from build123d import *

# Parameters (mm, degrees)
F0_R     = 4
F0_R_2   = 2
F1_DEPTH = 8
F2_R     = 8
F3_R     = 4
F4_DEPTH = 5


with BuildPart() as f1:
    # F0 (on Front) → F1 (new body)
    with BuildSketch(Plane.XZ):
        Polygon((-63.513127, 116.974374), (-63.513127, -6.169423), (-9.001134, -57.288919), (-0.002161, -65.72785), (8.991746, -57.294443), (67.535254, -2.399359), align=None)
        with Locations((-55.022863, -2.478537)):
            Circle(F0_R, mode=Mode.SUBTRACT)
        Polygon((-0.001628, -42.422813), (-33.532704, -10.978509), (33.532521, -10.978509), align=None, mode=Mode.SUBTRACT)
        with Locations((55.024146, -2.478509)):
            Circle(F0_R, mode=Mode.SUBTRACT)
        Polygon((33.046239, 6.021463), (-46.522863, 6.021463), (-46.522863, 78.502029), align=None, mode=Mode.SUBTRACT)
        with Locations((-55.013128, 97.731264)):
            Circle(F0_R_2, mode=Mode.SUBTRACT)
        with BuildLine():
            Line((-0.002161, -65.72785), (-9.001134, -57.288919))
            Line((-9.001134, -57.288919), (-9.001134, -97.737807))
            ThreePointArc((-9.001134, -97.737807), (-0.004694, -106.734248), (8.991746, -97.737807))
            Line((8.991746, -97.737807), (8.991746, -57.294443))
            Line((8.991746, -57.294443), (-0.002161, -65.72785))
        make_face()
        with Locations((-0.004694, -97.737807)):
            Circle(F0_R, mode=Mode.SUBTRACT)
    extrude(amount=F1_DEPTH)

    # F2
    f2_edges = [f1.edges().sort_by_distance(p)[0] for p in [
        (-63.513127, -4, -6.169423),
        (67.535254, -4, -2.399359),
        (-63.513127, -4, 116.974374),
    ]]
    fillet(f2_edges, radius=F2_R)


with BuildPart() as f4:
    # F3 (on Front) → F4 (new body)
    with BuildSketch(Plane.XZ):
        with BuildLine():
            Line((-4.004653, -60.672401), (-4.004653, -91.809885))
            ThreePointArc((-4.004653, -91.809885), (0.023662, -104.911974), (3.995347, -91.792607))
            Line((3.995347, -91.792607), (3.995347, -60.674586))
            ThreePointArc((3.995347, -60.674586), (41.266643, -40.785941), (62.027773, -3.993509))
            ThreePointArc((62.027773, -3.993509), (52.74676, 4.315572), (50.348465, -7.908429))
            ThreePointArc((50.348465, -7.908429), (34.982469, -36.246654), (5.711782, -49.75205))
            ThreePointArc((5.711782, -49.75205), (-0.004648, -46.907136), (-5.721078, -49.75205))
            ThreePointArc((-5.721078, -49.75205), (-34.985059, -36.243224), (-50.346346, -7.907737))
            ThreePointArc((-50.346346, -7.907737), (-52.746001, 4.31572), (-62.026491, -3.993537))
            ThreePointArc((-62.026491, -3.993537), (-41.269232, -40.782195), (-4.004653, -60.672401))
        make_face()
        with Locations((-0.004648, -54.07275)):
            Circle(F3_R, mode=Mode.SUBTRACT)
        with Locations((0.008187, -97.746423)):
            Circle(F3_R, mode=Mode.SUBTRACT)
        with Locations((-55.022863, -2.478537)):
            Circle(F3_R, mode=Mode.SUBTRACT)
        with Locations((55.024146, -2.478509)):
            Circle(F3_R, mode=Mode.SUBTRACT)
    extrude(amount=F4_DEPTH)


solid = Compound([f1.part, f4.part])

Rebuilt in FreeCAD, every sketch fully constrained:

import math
import FreeCAD as App
import Part
import Sketcher
Q = App.Units.Quantity


def edges_at(feature, points):
    """Names of the edges that pass closest to the given points."""
    edges = feature.Shape.Edges
    near = lambda p: min(range(len(edges)), key=lambda i: edges[i].distToShape(Part.Vertex(*p))[0])
    return sorted({f"Edge{near(p) + 1}" for p in points})

doc = App.newDocument("Part")
body = doc.addObject("PartDesign::Body", "Body")

# Sketch on XZ plane
sketch1 = body.newObject("Sketcher::SketchObject", "Sketch")
sketch1.AttachmentSupport = (doc.getObject("XZ_Plane"), [""])
sketch1.MapMode = "FlatFace"
sketch1.addGeometry(Part.LineSegment(App.Vector(-63.5, 117, 0), App.Vector(-63.5, -6.2, 0)), False)
sketch1.addGeometry(Part.LineSegment(App.Vector(-63.5, -6.2, 0), App.Vector(-9, -57.3, 0)), False)
sketch1.addGeometry(Part.LineSegment(App.Vector(-9, -57.3, 0), App.Vector(-9, -97.7, 0)), False)
sketch1.addGeometry(Part.ArcOfCircle(Part.Circle(App.Vector(0, -97.7, 0), App.Vector(0, 0, 1), 9), math.radians(180), math.radians(360)), False)
sketch1.addGeometry(Part.LineSegment(App.Vector(9, -97.7, 0), App.Vector(9, -57.3, 0)), False)
sketch1.addGeometry(Part.LineSegment(App.Vector(9, -57.3, 0), App.Vector(67.5, -2.4, 0)), False)
sketch1.addGeometry(Part.LineSegment(App.Vector(67.5, -2.4, 0), App.Vector(-63.5, 117, 0)), False)
sketch1.addGeometry(Part.Circle(App.Vector(0, -97.7, 0), App.Vector(0, 0, 1), 4), False)
sketch1.addGeometry(Part.Circle(App.Vector(-55, -2.5, 0), App.Vector(0, 0, 1), 4), False)
sketch1.addGeometry(Part.LineSegment(App.Vector(33.5, -11, 0), App.Vector(0, -42.4, 0)), False)
sketch1.addGeometry(Part.LineSegment(App.Vector(0, -42.4, 0), App.Vector(-33.5, -11, 0)), False)
sketch1.addGeometry(Part.LineSegment(App.Vector(-33.5, -11, 0), App.Vector(33.5, -11, 0)), False)
sketch1.addGeometry(Part.Circle(App.Vector(55, -2.5, 0), App.Vector(0, 0, 1), 4), False)
sketch1.addGeometry(Part.LineSegment(App.Vector(-46.5, 78.5, 0), App.Vector(33, 6, 0)), False)
sketch1.addGeometry(Part.LineSegment(App.Vector(33, 6, 0), App.Vector(-46.5, 6, 0)), False)
sketch1.addGeometry(Part.LineSegment(App.Vector(-46.5, 6, 0), App.Vector(-46.5, 78.5, 0)), False)
sketch1.addGeometry(Part.Circle(App.Vector(-55, 97.7, 0), App.Vector(0, 0, 1), 2), False)
sketch1.addConstraint(Sketcher.Constraint("Coincident", 0, 2, 1, 1))
sketch1.addConstraint(Sketcher.Constraint("Coincident", 1, 2, 2, 1))
sketch1.addConstraint(Sketcher.Constraint("Tangent", 2, 2, 3, 1))
sketch1.addConstraint(Sketcher.Constraint("Tangent", 3, 2, 4, 1))
sketch1.addConstraint(Sketcher.Constraint("Coincident", 4, 2, 5, 1))
sketch1.addConstraint(Sketcher.Constraint("Coincident", 5, 2, 6, 1))
sketch1.addConstraint(Sketcher.Constraint("Coincident", 6, 2, 0, 1))
sketch1.addConstraint(Sketcher.Constraint("Coincident", 9, 2, 10, 1))
sketch1.addConstraint(Sketcher.Constraint("Coincident", 10, 2, 11, 1))
sketch1.addConstraint(Sketcher.Constraint("Coincident", 11, 2, 9, 1))
sketch1.addConstraint(Sketcher.Constraint("Coincident", 13, 2, 14, 1))
sketch1.addConstraint(Sketcher.Constraint("Coincident", 14, 2, 15, 1))
sketch1.addConstraint(Sketcher.Constraint("Coincident", 15, 2, 13, 1))
sketch1.addConstraint(Sketcher.Constraint("Vertical", 0))
sketch1.addConstraint(Sketcher.Constraint("Vertical", 2))
sketch1.addConstraint(Sketcher.Constraint("Vertical", 4))
sketch1.addConstraint(Sketcher.Constraint("Horizontal", 11))
sketch1.addConstraint(Sketcher.Constraint("Horizontal", 14))
sketch1.addConstraint(Sketcher.Constraint("Vertical", 15))
sketch1.addConstraint(Sketcher.Constraint("Coincident", 7, 3, 3, 3))
sketch1.addConstraint(Sketcher.Constraint("Equal", 7, 8))
sketch1.addConstraint(Sketcher.Constraint("Equal", 8, 12))
sketch1.addConstraint(Sketcher.Constraint("Parallel", 5, 9))
sketch1.addConstraint(Sketcher.Constraint("Parallel", 1, 10))
sketch1.addConstraint(Sketcher.Constraint("Parallel", 6, 13))
sketch1.addConstraint(Sketcher.Constraint("Diameter", 7, Q("8 mm")))
sketch1.addConstraint(Sketcher.Constraint("Diameter", 16, Q("4 mm")))
sketch1.addConstraint(Sketcher.Constraint("DistanceX", 0, 2, 16, 3, Q("8.499999 mm")))
sketch1.addConstraint(Sketcher.Constraint("DistanceY", 11, 2, 12, 3, Q("8.5 mm")))
sketch1.addConstraint(Sketcher.Constraint("DistanceX", 8, 3, 14, 2, Q("8.5 mm")))
sketch1.addConstraint(Sketcher.Constraint("DistanceY", 8, 3, 14, 2, Q("8.5 mm")))
sketch1.addConstraint(Sketcher.Constraint("Radius", 3, Q("8.99644 mm")))
sketch1.addConstraint(Sketcher.Constraint("DistanceX", 14, 2, 14, 1, Q("79.569102 mm")))
sketch1.addConstraint(Sketcher.Constraint("Distance", 6, Q("177.267499 mm")))
sketch1.addConstraint(Sketcher.Constraint("DistanceY", 2, 2, 2, 1, Q("40.448888 mm")))
sketch1.addConstraint(Sketcher.Constraint("DistanceY", 7, 3, 12, 3, Q("95.259298 mm")))
sketch1.addConstraint(Sketcher.Constraint("DistanceY", 8, 3, 16, 3, Q("100.209801 mm")))
sketch1.addConstraint(Sketcher.Constraint("DistanceX", 3, 2, 12, 3, Q("46.0324 mm")))
sketch1.addConstraint(Sketcher.Constraint("Distance", 10, Q("45.968221 mm")))
sketch1.addConstraint(Sketcher.Constraint("DistanceX", 11, 1, 11, 2, Q("67.065225 mm")))
sketch1.addConstraint(Sketcher.Constraint("DistanceY", 0, 2, 0, 1, Q("123.143797 mm")))
sketch1.addConstraint(Sketcher.Constraint("DistanceY", 4, 1, 4, 2, Q("40.443364 mm")))
sketch1.addConstraint(Sketcher.Constraint("DistanceY", 15, 1, 15, 2, Q("72.480566 mm")))
sketch1.addConstraint(Sketcher.Constraint("DistanceY", 3, 3, -1, 1, Q("97.737808 mm")))
sketch1.addConstraint(Sketcher.Constraint("DistanceX", 16, 3, -1, 1, Q("55.013128 mm")))
sketch1.addConstraint(Sketcher.Constraint("DistanceY", 5, 2, -1, 1, Q("2.399359 mm")))
sketch1.addConstraint(Sketcher.Constraint("DistanceX", 9, 2, -1, 1, Q("0.001628 mm")))
sketch1.addConstraint(Sketcher.Constraint("DistanceX", -1, 1, 13, 2, Q("33.046239 mm")))
sketch1.addConstraint(Sketcher.Constraint("DistanceY", -1, 1, 15, 2, Q("78.502029 mm")))
pad1 = body.newObject("PartDesign::Pad", "Pad")
pad1.Profile = sketch1
pad1.Length = 8
doc.recompute()

fillet = body.newObject("PartDesign::Fillet", "Fillet")
fillet.Base = (pad1, edges_at(pad1, [(-63.513, -4, -6.169), (67.535, -4, -2.399), (-63.513, -4, 116.974)]))
fillet.Radius = 8
body2 = doc.addObject("PartDesign::Body", "Body001")

# Sketch on XZ plane
sketch2 = body2.newObject("Sketcher::SketchObject", "Sketch001")
sketch2.AttachmentSupport = (doc.getObject("XZ_Plane001"), [""])
sketch2.MapMode = "FlatFace"
sketch2.addGeometry(Part.LineSegment(App.Vector(-4, -60.7, 0), App.Vector(-4, -91.8, 0)), False)
sketch2.addGeometry(Part.ArcOfCircle(Part.Circle(App.Vector(0, -97.7, 0), App.Vector(0, 0, 1), 7.2), math.radians(124), math.radians(416)), False)
sketch2.addGeometry(Part.LineSegment(App.Vector(4, -91.8, 0), App.Vector(4, -60.7, 0)), False)
sketch2.addGeometry(Part.ArcOfCircle(Part.Circle(App.Vector(-11.5, 13.2, 0), App.Vector(0, 0, 1), 75.5), math.radians(-78), math.radians(-13)), False)
sketch2.addGeometry(Part.ArcOfCircle(Part.Circle(App.Vector(55, -2.5, 0), App.Vector(0, 0, 1), 7.2), math.radians(-12), math.radians(229)), False)
sketch2.addGeometry(Part.ArcOfCircle(Part.Circle(App.Vector(0, 1, 0), App.Vector(0, 0, 1), 51.1), math.radians(-84), math.radians(-10)), False)
sketch2.addGeometry(Part.ArcOfCircle(Part.Circle(App.Vector(0, -54.1, 0), App.Vector(0, 0, 1), 7.2), math.radians(37), math.radians(143)), False)
sketch2.addGeometry(Part.ArcOfCircle(Part.Circle(App.Vector(0, 1, 0), App.Vector(0, 0, 1), 51.1), math.radians(-170), math.radians(-96)), False)
sketch2.addGeometry(Part.ArcOfCircle(Part.Circle(App.Vector(-55, -2.5, 0), App.Vector(0, 0, 1), 7.2), math.radians(-49), math.radians(192)), False)
sketch2.addGeometry(Part.ArcOfCircle(Part.Circle(App.Vector(11.5, 13.2, 0), App.Vector(0, 0, 1), 75.5), math.radians(-167), math.radians(-102)), False)
sketch2.addGeometry(Part.Circle(App.Vector(0, -54.1, 0), App.Vector(0, 0, 1), 4), False)
sketch2.addGeometry(Part.Circle(App.Vector(0, -97.7, 0), App.Vector(0, 0, 1), 4), False)
sketch2.addGeometry(Part.Circle(App.Vector(-55, -2.5, 0), App.Vector(0, 0, 1), 4), False)
sketch2.addGeometry(Part.Circle(App.Vector(55, -2.5, 0), App.Vector(0, 0, 1), 4), False)
sketch2.addConstraint(Sketcher.Constraint("Coincident", 0, 2, 1, 1))
sketch2.addConstraint(Sketcher.Constraint("Coincident", 1, 2, 2, 1))
sketch2.addConstraint(Sketcher.Constraint("Coincident", 2, 2, 3, 1))
sketch2.addConstraint(Sketcher.Constraint("Coincident", 3, 2, 4, 1))
sketch2.addConstraint(Sketcher.Constraint("Coincident", 4, 2, 5, 2))
sketch2.addConstraint(Sketcher.Constraint("Coincident", 5, 1, 6, 1))
sketch2.addConstraint(Sketcher.Constraint("Coincident", 6, 2, 7, 2))
sketch2.addConstraint(Sketcher.Constraint("Coincident", 7, 1, 8, 1))
sketch2.addConstraint(Sketcher.Constraint("Coincident", 8, 2, 9, 1))
sketch2.addConstraint(Sketcher.Constraint("Coincident", 9, 2, 0, 1))
sketch2.addConstraint(Sketcher.Constraint("Vertical", 0))
sketch2.addConstraint(Sketcher.Constraint("Vertical", 2))
sketch2.addConstraint(Sketcher.Constraint("Coincident", 10, 3, 6, 3))
sketch2.addConstraint(Sketcher.Constraint("Coincident", 11, 3, 1, 3))
sketch2.addConstraint(Sketcher.Constraint("Coincident", 12, 3, 8, 3))
sketch2.addConstraint(Sketcher.Constraint("Coincident", 13, 3, 4, 3))
sketch2.addConstraint(Sketcher.Constraint("Equal", 4, 6))
sketch2.addConstraint(Sketcher.Constraint("Equal", 6, 8))
sketch2.addConstraint(Sketcher.Constraint("Equal", 3, 9))
sketch2.addConstraint(Sketcher.Constraint("Equal", 10, 11))
sketch2.addConstraint(Sketcher.Constraint("Equal", 11, 12))
sketch2.addConstraint(Sketcher.Constraint("Equal", 12, 13))
sketch2.addConstraint(Sketcher.Constraint("Horizontal", 5, 1, 6, 2))
sketch2.addConstraint(Sketcher.Constraint("Diameter", 10, Q("8 mm")))
sketch2.addConstraint(Sketcher.Constraint("DistanceX", 0, 2, 1, 2, Q("8 mm")))
sketch2.addConstraint(Sketcher.Constraint("Radius", 3, Q("75.530801 mm")))
sketch2.addConstraint(Sketcher.Constraint("Radius", 5, Q("51.112301 mm")))
sketch2.addConstraint(Sketcher.Constraint("Radius", 1, Q("7.165568 mm")))
sketch2.addConstraint(Sketcher.Constraint("Radius", 4, Q("7.165614 mm")))
sketch2.addConstraint(Sketcher.Constraint("Radius", 7, Q("51.112298 mm")))
sketch2.addConstraint(Sketcher.Constraint("DistanceY", 3, 2, 13, 3, Q("1.515 mm")))
sketch2.addConstraint(Sketcher.Constraint("DistanceY", 8, 2, 8, 3, Q("1.515 mm")))
sketch2.addConstraint(Sketcher.Constraint("DistanceY", 2, 1, 2, 2, Q("31.118021 mm")))
sketch2.addConstraint(Sketcher.Constraint("DistanceY", 9, 2, -1, 1, Q("60.672401 mm")))
sketch2.addConstraint(Sketcher.Constraint("DistanceY", 7, 3, 3, 3, Q("12.206101 mm")))
sketch2.addConstraint(Sketcher.Constraint("DistanceY", 0, 2, 2, 2, Q("31.135299 mm")))
sketch2.addConstraint(Sketcher.Constraint("DistanceY", 6, 3, 5, 1, Q("4.320699 mm")))
sketch2.addConstraint(Sketcher.Constraint("DistanceY", 7, 1, 12, 3, Q("5.4292 mm")))
sketch2.addConstraint(Sketcher.Constraint("DistanceY", 0, 2, 0, 1, Q("31.137484 mm")))
sketch2.addConstraint(Sketcher.Constraint("DistanceY", 4, 3, -1, 1, Q("2.478509 mm")))
sketch2.addConstraint(Sketcher.Constraint("DistanceX", 6, 3, -1, 1, Q("0.004648 mm")))
sketch2.addConstraint(Sketcher.Constraint("DistanceY", 6, 3, -1, 1, Q("54.072749 mm")))
sketch2.addConstraint(Sketcher.Constraint("DistanceY", -1, 1, 7, 3, Q("1.041712 mm")))
sketch2.addConstraint(Sketcher.Constraint("DistanceX", -1, 1, 9, 3, Q("11.510159 mm")))
sketch2.addConstraint(Sketcher.Constraint("DistanceY", 4, 2, -1, 1, Q("7.908429 mm")))
sketch2.addConstraint(Sketcher.Constraint("DistanceX", 8, 2, -1, 1, Q("62.026491 mm")))
pad2 = body2.newObject("PartDesign::Pad", "Pad001")
pad2.Profile = sketch2
pad2.Length = 5

doc.recompute()
